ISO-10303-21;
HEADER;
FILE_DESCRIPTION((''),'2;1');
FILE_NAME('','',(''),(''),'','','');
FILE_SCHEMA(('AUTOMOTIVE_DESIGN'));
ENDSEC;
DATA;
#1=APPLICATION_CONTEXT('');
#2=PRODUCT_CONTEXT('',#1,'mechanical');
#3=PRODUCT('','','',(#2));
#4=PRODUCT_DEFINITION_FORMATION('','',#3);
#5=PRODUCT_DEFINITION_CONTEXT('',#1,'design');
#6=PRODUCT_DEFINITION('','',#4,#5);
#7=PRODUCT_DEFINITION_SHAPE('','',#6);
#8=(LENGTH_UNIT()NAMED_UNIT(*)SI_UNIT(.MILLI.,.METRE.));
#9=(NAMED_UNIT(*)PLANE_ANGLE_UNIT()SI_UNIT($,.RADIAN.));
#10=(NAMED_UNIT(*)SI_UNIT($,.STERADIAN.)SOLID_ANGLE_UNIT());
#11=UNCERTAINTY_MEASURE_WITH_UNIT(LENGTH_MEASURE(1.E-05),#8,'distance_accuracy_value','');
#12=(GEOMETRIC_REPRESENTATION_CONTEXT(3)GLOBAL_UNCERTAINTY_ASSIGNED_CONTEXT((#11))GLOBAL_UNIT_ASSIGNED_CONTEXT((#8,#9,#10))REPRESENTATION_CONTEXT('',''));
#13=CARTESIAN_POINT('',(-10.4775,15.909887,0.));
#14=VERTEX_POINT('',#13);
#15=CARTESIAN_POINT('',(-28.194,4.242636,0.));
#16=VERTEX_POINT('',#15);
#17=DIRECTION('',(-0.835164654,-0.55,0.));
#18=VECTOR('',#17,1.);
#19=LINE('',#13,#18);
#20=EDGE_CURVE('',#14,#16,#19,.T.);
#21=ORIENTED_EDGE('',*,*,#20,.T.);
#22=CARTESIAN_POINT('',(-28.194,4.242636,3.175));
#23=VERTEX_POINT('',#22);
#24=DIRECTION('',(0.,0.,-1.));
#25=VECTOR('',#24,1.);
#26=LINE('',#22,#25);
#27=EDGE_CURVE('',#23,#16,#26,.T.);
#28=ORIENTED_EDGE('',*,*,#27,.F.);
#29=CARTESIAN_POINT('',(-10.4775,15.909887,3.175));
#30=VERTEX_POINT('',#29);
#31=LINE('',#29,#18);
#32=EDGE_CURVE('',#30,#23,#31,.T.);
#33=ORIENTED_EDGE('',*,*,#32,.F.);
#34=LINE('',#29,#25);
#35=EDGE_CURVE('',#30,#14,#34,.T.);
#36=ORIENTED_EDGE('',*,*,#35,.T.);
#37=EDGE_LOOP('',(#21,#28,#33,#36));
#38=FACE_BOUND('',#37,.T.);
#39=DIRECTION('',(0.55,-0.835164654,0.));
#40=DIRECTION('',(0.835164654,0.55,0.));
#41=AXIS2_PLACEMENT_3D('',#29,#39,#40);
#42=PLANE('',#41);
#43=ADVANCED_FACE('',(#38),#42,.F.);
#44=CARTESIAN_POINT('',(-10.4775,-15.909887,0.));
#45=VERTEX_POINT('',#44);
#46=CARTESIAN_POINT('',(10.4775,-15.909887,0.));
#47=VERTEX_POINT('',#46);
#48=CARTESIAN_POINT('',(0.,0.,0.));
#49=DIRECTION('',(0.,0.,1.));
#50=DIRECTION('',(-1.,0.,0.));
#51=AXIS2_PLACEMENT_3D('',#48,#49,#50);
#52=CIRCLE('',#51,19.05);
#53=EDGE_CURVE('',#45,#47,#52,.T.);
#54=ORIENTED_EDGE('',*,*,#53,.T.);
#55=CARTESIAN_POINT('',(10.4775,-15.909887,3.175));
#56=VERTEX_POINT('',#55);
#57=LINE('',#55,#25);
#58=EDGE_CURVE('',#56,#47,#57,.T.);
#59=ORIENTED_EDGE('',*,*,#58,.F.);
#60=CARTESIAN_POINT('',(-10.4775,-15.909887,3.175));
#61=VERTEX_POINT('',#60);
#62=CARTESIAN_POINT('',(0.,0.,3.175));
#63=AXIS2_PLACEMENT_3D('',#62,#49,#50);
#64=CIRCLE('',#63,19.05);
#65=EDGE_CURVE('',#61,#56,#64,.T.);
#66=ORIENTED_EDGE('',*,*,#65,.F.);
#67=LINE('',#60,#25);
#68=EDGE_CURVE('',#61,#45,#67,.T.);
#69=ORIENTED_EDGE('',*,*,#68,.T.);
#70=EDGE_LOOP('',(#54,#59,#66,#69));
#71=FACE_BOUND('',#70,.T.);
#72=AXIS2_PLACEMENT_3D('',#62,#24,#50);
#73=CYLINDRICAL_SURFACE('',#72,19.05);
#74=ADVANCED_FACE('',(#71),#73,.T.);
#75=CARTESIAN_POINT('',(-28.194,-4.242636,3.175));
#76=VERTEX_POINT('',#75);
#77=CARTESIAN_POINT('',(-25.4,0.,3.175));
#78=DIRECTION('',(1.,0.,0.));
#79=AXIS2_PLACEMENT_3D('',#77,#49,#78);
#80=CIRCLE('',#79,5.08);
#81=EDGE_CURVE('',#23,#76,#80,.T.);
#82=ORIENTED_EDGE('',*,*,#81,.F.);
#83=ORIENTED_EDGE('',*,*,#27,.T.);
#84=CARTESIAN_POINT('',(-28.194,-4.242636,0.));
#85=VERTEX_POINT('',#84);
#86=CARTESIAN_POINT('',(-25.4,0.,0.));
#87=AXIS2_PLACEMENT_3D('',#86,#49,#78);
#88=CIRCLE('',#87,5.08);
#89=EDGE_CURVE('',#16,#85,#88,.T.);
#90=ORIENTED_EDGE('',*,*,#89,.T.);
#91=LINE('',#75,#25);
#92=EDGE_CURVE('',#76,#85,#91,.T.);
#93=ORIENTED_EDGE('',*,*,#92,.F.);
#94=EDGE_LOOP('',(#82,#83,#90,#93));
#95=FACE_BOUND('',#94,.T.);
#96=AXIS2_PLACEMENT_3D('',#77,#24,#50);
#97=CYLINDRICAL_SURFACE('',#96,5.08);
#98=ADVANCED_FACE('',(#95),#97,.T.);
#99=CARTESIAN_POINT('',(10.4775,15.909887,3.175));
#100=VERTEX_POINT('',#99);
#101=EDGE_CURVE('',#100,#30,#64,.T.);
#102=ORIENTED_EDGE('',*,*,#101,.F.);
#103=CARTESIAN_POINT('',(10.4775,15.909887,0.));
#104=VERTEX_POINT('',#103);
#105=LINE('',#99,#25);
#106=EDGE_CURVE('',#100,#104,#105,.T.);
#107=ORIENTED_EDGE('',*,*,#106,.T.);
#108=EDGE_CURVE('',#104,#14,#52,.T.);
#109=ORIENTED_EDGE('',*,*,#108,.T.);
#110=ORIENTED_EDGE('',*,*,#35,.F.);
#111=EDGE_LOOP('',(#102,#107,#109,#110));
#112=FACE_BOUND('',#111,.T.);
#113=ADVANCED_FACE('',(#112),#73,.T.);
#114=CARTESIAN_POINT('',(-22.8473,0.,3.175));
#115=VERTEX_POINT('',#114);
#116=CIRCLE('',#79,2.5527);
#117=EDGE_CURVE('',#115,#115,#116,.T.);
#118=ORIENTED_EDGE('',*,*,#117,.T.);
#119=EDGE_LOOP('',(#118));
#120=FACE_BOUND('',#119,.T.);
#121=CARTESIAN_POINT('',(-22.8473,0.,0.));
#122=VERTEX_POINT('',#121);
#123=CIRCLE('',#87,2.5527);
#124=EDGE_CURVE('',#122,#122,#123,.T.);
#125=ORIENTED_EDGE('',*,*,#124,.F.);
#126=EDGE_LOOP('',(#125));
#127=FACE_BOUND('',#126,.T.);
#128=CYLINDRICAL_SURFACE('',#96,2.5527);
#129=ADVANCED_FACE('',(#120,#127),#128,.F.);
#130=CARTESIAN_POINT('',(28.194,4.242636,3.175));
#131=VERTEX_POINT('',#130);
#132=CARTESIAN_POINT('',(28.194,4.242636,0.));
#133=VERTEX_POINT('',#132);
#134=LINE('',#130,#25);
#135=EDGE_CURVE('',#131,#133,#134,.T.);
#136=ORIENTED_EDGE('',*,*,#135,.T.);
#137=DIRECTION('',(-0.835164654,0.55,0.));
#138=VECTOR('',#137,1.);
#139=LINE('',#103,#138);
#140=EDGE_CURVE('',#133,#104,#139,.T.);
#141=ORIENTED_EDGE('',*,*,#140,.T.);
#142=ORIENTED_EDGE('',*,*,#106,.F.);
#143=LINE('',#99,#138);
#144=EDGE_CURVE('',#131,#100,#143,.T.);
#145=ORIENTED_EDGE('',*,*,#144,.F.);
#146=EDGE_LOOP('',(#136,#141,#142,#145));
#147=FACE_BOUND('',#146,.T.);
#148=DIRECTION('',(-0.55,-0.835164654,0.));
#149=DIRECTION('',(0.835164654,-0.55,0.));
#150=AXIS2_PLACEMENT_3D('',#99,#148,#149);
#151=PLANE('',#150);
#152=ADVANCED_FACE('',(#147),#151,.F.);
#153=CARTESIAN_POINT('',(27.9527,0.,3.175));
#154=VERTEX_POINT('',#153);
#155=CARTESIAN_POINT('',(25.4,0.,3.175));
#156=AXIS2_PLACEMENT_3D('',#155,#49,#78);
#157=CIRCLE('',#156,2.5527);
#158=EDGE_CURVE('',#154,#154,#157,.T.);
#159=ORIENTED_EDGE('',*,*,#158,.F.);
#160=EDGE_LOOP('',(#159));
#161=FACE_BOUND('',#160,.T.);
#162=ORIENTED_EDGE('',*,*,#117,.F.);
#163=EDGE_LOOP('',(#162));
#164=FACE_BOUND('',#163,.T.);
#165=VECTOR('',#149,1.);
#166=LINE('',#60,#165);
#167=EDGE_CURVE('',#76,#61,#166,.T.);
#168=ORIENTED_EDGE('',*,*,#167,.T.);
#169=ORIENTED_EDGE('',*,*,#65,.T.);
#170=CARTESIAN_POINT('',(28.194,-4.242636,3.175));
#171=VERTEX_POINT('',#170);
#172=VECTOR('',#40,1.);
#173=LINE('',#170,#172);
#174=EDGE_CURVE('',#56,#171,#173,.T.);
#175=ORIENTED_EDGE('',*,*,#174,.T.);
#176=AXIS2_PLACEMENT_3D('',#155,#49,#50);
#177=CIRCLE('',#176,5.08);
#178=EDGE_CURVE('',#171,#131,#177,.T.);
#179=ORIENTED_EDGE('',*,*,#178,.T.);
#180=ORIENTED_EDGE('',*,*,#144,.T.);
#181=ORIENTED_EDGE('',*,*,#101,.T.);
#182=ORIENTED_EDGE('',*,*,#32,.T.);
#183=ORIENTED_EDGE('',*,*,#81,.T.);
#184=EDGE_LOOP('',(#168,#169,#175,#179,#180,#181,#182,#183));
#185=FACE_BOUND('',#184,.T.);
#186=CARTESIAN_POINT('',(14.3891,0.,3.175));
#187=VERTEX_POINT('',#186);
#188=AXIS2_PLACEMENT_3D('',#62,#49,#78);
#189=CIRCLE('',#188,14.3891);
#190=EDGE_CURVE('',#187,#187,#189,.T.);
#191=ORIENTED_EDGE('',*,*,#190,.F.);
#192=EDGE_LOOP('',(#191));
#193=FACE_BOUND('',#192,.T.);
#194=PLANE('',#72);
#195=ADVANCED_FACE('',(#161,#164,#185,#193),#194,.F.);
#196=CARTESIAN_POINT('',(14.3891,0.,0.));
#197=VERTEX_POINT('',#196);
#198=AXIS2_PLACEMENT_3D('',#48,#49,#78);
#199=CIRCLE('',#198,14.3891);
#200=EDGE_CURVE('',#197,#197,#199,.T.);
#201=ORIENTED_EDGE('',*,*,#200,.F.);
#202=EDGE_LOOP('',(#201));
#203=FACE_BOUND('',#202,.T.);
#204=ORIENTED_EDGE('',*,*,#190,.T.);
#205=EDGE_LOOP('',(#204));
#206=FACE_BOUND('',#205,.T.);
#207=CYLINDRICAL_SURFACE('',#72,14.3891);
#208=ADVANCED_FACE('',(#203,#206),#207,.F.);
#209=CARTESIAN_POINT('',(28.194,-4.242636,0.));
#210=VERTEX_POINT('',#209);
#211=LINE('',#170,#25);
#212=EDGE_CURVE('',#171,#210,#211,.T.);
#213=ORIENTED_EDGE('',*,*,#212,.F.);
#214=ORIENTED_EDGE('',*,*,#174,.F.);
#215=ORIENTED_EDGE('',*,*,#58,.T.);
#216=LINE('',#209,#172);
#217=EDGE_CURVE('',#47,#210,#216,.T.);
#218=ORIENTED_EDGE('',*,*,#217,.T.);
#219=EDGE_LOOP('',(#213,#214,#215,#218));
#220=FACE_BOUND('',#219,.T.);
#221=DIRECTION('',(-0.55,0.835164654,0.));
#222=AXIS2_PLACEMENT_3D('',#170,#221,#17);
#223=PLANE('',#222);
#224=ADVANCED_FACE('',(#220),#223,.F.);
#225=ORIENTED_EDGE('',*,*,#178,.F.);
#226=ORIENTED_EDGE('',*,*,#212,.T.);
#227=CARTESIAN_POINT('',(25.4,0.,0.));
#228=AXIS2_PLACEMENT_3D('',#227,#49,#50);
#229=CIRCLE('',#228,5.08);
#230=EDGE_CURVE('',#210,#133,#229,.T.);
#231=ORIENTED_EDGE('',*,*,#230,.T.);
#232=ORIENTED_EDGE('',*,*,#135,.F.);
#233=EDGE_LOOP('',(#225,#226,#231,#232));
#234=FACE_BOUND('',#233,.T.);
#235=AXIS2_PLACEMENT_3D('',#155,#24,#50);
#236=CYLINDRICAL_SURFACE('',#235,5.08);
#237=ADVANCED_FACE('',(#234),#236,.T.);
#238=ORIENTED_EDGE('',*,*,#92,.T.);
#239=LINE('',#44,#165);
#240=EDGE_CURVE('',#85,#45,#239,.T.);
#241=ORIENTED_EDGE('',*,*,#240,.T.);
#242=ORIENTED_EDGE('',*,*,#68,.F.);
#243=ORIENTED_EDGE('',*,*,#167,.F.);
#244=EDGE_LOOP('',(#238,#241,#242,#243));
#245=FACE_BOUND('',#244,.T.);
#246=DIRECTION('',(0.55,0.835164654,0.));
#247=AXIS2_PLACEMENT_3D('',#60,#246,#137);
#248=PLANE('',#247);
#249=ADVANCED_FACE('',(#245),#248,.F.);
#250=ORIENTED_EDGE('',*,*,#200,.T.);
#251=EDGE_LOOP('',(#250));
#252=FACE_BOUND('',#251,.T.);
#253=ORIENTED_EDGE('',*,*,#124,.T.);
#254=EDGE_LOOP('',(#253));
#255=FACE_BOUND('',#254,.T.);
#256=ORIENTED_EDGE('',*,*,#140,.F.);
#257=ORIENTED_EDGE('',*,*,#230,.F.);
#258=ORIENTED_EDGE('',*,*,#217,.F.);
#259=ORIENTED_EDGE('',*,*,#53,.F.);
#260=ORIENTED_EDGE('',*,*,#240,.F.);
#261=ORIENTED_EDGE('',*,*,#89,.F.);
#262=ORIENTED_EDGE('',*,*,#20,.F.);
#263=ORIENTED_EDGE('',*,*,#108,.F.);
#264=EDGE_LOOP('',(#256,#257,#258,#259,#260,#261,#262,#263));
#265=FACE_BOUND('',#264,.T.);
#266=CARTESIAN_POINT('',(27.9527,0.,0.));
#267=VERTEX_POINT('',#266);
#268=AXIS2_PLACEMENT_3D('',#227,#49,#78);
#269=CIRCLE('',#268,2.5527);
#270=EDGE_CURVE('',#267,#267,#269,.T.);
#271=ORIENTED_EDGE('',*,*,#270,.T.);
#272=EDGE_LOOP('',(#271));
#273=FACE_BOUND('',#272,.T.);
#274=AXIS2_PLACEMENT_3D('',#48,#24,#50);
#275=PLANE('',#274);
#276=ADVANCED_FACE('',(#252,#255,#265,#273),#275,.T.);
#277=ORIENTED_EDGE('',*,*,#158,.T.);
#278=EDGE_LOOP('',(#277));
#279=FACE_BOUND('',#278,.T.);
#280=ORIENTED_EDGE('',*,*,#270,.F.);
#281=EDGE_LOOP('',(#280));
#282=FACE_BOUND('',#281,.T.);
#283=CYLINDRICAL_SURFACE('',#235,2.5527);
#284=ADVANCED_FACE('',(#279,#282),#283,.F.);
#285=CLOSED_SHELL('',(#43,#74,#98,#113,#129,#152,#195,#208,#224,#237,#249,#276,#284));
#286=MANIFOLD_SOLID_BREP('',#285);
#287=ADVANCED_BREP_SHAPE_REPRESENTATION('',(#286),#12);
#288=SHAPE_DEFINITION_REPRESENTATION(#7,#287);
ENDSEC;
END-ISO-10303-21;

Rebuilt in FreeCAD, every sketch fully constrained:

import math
import FreeCAD as App
import Part
import Sketcher

V = App.Vector
Q = App.Units.Quantity

doc = App.newDocument("Part")
body = doc.addObject("PartDesign::Body", "Body")

# Sketch on XY plane
sketch1 = doc.addObject("Sketcher::SketchObject", "Sketch")
body.addObject(sketch1)
sketch1.AttachmentSupport = (doc.XY_Plane, [""])
sketch1.MapMode = "FlatFace"
sketch1.addGeometry([
    Part.LineSegment(V(-10.4775, 15.909887, 0), V(-28.194, 4.242636, 0)),  # 0
    Part.ArcOfCircle(Part.Circle(V(-25.4, 0, 0), V(0, 0, 1), 5.08), math.radians(123.367013), math.radians(236.632987)),  # 1
    Part.LineSegment(V(-28.194, -4.242636, 0), V(-10.4775, -15.909887, 0)),  # 2
    Part.ArcOfCircle(Part.Circle(V(0, 0, 0), V(0, 0, 1), 19.05), math.radians(-123.367013), math.radians(-56.632987)),  # 3
    Part.LineSegment(V(10.4775, -15.909887, 0), V(28.194, -4.242636, 0)),  # 4
    Part.ArcOfCircle(Part.Circle(V(25.4, 0, 0), V(0, 0, 1), 5.08), math.radians(-56.632987), math.radians(56.632987)),  # 5
    Part.LineSegment(V(28.194, 4.242636, 0), V(10.4775, 15.909887, 0)),  # 6
    Part.ArcOfCircle(Part.Circle(V(0, 0, 0), V(0, 0, 1), 19.05), math.radians(56.632987), math.radians(123.367013)),  # 7
    Part.Circle(V(-25.4, 0, 0), V(0, 0, 1), 2.5527),  # 8
    Part.Circle(V(0, 0, 0), V(0, 0, 1), 14.3891),  # 9
    Part.Circle(V(25.4, 0, 0), V(0, 0, 1), 2.5527),  # 10
], False)
sketch1.addConstraint([
    Sketcher.Constraint("Tangent", 0, 2, 1, 1),
    Sketcher.Constraint("Tangent", 1, 2, 2, 1),
    Sketcher.Constraint("Tangent", 2, 2, 3, 1),
    Sketcher.Constraint("Tangent", 3, 2, 4, 1),
    Sketcher.Constraint("Tangent", 4, 2, 5, 1),
    Sketcher.Constraint("Tangent", 5, 2, 6, 1),
    Sketcher.Constraint("Tangent", 6, 2, 7, 1),
    Sketcher.Constraint("Tangent", 7, 2, 0, 1),
    Sketcher.Constraint("Coincident", 3, 3, -1, 1),
    Sketcher.Constraint("Coincident", 7, 3, -1, 1),
    Sketcher.Constraint("Coincident", 9, 3, -1, 1),
    Sketcher.Constraint("Coincident", 8, 3, 1, 3),
    Sketcher.Constraint("Coincident", 10, 3, 5, 3),
    Sketcher.Constraint("Equal", 1, 5),
    Sketcher.Constraint("Equal", 3, 7),
    Sketcher.Constraint("Equal", 8, 10),
    Sketcher.Constraint("Symmetric", 1, 3, 5, 3, -1, 1),
    Sketcher.Constraint("PointOnObject", 1, 3, -1),
    Sketcher.Constraint("Radius", 1, Q("0.2 in")),
    Sketcher.Constraint("Radius", 3, Q("0.75 in")),
    Sketcher.Constraint("Diameter", 8, Q("0.201 in")),
    Sketcher.Constraint("Diameter", 9, Q("1.133 in")),
    Sketcher.Constraint("DistanceX", 1, 3, -1, 1, Q("1 in")),
])
pad1 = doc.addObject("PartDesign::Pad", "Pad")
body.addObject(pad1)
pad1.Profile = sketch1
pad1.Length = Q("0.125 in")

doc.recompute()
